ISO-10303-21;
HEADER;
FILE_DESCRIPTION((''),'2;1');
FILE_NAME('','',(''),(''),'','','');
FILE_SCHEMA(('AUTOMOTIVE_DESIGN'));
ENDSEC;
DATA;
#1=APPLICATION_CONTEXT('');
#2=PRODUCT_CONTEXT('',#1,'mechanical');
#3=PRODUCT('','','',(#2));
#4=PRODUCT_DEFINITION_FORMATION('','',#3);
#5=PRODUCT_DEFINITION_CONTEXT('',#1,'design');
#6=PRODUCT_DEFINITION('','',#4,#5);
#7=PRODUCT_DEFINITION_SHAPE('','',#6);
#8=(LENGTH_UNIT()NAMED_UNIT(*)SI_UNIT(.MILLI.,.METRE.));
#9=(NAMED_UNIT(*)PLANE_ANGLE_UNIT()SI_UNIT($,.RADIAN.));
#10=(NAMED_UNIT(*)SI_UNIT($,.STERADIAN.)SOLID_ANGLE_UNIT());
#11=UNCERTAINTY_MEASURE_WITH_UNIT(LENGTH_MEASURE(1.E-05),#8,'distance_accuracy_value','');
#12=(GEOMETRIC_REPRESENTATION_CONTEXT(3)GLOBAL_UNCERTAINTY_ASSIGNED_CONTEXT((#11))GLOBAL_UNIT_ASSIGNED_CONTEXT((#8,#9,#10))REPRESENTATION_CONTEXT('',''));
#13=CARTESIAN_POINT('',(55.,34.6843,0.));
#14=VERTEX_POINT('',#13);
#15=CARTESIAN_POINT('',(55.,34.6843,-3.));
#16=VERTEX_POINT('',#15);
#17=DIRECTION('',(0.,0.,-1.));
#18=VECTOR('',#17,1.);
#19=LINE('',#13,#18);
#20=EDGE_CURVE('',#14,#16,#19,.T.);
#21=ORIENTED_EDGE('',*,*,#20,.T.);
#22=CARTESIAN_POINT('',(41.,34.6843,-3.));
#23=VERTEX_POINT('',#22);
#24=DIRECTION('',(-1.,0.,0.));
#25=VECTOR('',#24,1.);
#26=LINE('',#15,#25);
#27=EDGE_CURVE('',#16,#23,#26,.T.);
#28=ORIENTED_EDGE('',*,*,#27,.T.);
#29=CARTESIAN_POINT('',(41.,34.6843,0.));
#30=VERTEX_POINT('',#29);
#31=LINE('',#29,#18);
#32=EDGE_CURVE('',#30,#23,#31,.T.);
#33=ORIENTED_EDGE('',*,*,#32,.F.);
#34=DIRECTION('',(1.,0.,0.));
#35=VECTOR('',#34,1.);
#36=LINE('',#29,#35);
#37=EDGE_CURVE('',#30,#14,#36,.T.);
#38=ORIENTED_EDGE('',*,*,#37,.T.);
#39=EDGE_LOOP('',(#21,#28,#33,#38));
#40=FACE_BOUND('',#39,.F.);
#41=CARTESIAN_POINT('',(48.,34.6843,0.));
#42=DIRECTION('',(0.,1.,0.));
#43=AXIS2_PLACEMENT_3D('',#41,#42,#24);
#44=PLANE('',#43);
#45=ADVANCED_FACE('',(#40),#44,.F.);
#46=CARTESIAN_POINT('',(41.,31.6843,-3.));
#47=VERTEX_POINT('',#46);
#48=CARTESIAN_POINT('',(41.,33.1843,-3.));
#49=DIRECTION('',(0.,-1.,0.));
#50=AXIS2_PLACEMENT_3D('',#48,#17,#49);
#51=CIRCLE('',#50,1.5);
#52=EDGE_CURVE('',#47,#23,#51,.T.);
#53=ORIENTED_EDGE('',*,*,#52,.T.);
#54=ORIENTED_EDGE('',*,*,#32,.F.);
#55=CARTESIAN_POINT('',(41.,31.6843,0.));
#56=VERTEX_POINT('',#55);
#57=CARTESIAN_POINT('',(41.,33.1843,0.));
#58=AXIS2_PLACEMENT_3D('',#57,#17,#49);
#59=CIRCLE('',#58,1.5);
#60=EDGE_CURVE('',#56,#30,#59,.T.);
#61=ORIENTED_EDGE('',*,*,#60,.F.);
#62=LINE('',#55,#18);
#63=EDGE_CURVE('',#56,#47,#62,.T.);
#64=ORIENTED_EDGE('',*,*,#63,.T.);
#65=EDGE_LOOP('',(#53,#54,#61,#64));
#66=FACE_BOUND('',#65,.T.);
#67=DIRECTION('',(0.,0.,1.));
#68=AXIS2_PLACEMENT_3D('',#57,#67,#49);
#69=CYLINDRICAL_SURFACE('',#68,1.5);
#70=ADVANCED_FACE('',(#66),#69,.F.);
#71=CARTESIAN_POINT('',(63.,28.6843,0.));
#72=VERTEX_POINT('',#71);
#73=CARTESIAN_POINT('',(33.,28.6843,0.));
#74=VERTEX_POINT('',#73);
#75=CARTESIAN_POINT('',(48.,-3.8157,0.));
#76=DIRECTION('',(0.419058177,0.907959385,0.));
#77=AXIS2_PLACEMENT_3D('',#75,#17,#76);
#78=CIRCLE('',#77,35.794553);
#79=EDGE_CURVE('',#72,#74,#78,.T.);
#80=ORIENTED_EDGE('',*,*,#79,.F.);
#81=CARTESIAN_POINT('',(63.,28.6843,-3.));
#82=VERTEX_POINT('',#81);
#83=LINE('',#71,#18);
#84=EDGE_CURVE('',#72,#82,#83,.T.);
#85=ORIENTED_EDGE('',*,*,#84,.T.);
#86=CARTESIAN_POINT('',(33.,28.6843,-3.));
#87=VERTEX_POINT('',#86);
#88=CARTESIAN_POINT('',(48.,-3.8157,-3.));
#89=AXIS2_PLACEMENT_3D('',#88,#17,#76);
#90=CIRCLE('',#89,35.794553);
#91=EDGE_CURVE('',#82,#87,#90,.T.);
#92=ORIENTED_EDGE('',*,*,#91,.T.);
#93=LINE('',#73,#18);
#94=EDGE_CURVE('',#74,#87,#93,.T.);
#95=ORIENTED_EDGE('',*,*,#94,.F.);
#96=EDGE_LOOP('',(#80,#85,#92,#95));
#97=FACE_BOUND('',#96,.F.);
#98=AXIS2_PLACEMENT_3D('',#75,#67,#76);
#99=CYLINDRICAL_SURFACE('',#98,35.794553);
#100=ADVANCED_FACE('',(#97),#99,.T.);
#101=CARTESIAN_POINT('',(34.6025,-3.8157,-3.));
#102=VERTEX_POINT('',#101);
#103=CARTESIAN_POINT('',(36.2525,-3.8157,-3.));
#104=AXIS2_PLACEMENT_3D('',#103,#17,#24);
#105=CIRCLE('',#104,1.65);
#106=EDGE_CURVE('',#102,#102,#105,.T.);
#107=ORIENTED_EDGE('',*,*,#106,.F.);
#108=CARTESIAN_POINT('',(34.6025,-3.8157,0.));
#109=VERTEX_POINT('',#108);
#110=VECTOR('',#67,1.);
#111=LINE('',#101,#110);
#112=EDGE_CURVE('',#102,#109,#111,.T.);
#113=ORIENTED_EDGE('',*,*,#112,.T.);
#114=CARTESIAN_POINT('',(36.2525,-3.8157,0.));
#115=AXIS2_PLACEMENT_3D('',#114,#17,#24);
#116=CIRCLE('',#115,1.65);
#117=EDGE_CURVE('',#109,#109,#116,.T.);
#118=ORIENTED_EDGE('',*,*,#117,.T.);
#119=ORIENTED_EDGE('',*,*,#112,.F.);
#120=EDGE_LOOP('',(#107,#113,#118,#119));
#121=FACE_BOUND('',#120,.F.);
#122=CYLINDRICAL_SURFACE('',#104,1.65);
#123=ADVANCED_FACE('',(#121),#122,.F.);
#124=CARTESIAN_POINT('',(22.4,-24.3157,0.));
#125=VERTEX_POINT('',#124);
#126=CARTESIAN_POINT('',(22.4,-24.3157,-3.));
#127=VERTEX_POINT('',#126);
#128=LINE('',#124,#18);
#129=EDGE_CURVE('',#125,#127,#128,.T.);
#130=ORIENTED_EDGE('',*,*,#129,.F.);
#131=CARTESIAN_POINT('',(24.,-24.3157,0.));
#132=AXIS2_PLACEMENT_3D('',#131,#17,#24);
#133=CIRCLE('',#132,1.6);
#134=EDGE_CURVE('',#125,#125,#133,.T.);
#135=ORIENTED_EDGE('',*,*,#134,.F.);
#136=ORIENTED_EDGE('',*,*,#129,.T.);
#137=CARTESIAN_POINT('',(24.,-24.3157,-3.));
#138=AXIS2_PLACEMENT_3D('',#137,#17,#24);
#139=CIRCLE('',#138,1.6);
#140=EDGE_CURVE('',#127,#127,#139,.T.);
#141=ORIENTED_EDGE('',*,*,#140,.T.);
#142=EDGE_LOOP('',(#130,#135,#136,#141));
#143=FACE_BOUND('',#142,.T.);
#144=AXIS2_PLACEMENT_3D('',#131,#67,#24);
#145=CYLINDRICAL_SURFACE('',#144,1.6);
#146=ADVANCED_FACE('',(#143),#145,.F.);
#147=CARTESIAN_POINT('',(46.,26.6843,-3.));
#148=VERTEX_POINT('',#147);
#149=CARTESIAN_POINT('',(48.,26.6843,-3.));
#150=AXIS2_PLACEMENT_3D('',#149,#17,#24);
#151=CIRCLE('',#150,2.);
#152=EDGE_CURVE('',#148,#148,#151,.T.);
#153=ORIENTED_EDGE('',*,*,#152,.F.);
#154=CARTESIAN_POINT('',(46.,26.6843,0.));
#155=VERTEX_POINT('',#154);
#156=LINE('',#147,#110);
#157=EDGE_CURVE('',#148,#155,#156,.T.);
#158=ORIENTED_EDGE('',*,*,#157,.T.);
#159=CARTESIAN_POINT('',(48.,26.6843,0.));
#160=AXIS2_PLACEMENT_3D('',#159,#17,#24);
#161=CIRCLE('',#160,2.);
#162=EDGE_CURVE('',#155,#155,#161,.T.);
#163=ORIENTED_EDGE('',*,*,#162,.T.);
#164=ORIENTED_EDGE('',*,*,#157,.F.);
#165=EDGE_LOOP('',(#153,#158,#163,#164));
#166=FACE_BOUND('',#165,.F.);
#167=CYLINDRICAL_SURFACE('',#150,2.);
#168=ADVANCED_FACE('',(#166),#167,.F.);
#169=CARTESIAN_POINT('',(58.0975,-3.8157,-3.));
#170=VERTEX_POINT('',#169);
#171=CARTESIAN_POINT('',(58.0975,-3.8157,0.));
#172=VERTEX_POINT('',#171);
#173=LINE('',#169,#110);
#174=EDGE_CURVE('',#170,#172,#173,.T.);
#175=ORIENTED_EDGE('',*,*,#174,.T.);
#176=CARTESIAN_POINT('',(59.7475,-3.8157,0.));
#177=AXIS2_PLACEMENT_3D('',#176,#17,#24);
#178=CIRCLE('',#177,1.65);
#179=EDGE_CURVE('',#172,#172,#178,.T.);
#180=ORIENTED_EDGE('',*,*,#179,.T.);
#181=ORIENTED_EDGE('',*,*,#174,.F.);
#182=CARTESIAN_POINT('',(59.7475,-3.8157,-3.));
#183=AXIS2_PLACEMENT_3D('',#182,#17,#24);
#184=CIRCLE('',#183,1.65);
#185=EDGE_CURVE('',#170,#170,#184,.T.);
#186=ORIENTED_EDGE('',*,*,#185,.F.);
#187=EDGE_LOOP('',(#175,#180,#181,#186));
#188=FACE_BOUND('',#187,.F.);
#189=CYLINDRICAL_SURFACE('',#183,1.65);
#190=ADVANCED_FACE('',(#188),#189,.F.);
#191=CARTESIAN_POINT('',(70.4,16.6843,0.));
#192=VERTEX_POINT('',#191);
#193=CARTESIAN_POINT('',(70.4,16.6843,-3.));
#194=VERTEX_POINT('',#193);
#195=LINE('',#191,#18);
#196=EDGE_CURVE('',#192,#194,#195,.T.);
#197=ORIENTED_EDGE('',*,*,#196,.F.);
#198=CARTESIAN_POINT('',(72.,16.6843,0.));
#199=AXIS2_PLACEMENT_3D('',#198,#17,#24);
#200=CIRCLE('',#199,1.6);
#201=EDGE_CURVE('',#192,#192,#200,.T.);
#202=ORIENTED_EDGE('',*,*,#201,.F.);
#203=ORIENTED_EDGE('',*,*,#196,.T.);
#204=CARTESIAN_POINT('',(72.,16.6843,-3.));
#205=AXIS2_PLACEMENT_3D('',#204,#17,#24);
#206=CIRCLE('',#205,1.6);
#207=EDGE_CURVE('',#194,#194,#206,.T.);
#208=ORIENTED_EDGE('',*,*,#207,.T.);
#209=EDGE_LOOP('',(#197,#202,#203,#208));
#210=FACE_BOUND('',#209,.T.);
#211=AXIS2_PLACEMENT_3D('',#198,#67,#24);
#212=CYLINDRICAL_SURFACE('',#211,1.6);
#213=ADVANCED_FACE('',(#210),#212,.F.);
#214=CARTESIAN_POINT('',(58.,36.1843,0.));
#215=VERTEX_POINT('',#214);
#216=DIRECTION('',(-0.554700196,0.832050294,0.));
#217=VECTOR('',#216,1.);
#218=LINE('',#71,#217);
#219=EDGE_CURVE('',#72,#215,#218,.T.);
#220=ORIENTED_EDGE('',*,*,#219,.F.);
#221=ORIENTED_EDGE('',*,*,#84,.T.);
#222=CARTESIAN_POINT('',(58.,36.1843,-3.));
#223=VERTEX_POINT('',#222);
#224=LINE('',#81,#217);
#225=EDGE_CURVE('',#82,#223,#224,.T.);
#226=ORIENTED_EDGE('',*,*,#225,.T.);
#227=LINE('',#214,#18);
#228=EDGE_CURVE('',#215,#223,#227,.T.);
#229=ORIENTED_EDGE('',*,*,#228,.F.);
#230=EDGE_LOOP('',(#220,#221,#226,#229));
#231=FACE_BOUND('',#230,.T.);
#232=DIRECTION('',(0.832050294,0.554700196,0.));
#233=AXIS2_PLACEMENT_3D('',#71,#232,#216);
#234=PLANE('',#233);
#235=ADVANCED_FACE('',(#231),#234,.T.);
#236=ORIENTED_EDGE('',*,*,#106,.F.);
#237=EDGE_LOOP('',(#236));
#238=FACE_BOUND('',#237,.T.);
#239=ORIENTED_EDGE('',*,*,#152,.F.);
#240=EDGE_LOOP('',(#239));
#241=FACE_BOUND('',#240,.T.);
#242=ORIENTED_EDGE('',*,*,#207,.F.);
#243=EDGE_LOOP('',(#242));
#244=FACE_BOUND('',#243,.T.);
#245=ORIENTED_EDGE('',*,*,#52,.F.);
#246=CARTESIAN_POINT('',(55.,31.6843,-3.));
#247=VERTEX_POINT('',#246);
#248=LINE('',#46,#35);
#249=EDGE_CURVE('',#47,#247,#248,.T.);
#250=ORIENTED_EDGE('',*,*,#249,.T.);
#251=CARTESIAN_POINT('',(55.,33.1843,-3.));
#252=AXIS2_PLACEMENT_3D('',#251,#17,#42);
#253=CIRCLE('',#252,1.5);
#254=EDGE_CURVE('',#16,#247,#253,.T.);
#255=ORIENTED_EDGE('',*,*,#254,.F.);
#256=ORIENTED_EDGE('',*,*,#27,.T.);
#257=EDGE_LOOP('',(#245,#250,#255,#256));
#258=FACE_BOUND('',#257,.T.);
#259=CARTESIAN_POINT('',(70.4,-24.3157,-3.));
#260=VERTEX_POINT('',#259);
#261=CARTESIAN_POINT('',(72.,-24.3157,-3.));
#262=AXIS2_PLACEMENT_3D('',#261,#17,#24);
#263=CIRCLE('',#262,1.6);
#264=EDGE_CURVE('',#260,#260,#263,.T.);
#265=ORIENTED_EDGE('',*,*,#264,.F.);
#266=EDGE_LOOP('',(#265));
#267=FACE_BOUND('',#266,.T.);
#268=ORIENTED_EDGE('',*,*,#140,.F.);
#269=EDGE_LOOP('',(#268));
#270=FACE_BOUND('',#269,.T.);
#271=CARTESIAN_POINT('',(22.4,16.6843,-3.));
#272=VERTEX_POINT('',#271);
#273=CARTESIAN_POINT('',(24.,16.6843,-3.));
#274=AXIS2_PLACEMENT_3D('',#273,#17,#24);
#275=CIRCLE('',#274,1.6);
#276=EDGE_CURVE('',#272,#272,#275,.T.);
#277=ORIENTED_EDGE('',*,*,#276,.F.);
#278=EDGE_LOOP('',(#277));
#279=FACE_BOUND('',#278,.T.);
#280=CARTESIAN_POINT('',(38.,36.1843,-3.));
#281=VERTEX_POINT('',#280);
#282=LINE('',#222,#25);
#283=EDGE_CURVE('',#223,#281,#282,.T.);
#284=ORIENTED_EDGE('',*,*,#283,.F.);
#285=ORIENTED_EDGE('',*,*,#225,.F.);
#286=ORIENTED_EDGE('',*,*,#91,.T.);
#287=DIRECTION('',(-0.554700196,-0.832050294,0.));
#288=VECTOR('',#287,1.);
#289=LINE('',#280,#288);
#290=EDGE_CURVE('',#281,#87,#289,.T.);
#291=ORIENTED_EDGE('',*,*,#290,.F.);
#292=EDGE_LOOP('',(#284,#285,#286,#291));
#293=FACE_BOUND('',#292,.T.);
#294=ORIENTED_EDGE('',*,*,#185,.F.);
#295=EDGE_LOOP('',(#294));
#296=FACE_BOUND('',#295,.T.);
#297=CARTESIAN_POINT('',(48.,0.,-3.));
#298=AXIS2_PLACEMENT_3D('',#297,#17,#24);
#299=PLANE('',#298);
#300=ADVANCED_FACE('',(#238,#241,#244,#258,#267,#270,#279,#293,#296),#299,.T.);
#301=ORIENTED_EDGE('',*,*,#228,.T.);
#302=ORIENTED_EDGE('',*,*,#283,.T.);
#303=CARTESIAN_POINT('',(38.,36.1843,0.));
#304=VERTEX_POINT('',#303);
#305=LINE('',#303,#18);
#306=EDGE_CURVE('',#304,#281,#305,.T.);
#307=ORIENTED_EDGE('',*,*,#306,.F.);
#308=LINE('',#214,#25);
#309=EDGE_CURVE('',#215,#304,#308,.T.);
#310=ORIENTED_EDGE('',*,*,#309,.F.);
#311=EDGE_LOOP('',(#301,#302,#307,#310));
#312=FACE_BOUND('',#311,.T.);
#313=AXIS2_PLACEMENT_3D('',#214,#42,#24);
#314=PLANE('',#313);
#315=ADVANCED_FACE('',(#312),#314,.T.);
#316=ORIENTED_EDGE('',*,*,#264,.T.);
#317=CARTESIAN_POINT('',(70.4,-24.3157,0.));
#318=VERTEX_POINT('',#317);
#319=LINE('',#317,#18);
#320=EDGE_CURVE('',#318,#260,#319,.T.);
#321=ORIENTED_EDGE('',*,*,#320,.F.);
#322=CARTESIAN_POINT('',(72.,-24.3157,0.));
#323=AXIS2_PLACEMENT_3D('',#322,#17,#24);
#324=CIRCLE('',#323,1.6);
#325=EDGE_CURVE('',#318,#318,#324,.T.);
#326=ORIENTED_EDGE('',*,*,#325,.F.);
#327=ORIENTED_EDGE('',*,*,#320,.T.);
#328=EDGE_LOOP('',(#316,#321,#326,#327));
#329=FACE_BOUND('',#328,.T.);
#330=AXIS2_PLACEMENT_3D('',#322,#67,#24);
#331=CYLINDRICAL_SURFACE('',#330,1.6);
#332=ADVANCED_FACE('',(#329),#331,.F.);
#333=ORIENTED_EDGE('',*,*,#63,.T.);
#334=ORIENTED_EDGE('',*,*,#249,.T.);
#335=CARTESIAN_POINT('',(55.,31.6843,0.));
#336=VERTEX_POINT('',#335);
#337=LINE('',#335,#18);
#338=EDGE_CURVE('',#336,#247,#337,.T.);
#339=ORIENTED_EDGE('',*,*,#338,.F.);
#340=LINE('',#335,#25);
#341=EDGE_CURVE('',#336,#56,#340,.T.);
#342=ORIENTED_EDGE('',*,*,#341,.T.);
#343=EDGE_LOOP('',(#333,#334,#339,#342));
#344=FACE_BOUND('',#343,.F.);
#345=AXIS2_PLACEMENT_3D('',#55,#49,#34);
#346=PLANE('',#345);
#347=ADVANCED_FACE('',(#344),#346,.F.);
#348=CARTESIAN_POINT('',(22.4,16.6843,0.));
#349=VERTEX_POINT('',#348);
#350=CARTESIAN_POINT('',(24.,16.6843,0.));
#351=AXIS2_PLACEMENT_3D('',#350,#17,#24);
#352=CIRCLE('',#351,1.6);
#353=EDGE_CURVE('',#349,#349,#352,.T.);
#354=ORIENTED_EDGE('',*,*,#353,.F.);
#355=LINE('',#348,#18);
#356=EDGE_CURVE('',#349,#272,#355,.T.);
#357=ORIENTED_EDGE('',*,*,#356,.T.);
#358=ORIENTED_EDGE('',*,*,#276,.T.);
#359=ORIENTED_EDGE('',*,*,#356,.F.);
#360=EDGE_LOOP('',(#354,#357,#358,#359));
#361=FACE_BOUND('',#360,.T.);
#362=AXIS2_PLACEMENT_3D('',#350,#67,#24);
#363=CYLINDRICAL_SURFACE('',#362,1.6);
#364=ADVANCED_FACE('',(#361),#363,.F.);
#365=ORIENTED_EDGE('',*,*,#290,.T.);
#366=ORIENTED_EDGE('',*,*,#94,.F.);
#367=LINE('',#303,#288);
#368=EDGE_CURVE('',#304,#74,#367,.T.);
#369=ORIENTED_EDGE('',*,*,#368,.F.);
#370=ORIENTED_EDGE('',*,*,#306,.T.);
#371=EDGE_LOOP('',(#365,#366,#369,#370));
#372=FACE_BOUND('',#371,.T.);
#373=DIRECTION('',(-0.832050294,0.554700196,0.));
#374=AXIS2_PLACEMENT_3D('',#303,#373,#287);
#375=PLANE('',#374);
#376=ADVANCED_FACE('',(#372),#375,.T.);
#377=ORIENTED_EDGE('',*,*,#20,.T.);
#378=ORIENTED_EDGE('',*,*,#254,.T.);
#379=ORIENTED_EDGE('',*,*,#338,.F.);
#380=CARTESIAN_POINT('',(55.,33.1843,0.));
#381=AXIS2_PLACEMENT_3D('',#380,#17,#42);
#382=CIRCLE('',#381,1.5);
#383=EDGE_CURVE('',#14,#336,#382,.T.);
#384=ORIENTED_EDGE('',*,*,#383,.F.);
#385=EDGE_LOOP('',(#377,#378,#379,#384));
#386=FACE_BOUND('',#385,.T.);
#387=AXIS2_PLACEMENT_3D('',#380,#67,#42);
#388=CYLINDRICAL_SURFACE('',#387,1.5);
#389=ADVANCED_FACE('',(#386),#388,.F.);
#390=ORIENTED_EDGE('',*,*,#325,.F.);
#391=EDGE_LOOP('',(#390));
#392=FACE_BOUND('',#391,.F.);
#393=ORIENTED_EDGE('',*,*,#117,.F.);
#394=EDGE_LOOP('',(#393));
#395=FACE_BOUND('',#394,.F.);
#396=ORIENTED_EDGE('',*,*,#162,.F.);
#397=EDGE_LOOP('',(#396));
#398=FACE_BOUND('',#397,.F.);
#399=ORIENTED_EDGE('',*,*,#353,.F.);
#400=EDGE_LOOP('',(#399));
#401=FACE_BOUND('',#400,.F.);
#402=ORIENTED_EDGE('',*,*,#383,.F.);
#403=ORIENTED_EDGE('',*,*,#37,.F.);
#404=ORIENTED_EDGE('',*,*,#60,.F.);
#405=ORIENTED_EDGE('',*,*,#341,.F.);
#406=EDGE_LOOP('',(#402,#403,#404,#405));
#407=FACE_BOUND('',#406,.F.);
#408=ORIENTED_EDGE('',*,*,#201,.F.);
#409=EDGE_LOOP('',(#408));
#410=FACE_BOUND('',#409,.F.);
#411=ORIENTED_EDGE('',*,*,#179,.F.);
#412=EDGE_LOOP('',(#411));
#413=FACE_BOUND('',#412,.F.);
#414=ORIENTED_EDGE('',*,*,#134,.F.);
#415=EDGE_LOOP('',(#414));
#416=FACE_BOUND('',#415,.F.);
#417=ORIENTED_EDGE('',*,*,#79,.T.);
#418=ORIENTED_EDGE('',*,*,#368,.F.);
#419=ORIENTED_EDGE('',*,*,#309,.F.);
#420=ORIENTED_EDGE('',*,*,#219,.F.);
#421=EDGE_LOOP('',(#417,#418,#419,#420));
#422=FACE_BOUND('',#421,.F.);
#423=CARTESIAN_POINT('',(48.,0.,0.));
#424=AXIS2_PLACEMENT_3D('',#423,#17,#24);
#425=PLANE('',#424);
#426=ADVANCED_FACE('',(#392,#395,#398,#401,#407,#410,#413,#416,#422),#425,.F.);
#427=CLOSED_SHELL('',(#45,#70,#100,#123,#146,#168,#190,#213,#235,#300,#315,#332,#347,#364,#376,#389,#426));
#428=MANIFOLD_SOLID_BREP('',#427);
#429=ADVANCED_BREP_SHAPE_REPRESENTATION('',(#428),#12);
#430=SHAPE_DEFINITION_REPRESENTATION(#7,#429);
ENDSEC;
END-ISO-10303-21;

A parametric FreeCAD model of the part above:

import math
import FreeCAD as App
import Part
import Sketcher
from FreeCAD import Vector
Q = App.Units.Quantity

doc = App.newDocument("Part")
body = doc.addObject("PartDesign::Body", "Body")

sketch1 = body.newObject("Sketcher::SketchObject", "Sketch")
sketch1.AttachmentSupport = (doc.getObject("XY_Plane"), [""])
sketch1.MapMode = "FlatFace"
sketch1.addGeometry(Part.LineSegment(Vector(58, 36.2, 0), Vector(63, 28.7, 0)), False)
sketch1.addGeometry(Part.ArcOfCircle(Part.Circle(Vector(48, -3.8, 0), Vector(0, 0, 1), 35.8), math.radians(115), math.radians(425)), False)
sketch1.addGeometry(Part.LineSegment(Vector(33, 28.7, 0), Vector(38, 36.2, 0)), False)
sketch1.addGeometry(Part.LineSegment(Vector(38, 36.2, 0), Vector(58, 36.2, 0)), False)
sketch1.addGeometry(Part.Circle(Vector(72, -24.3, 0), Vector(0, 0, 1), 1.6), False)
sketch1.addGeometry(Part.Circle(Vector(24, -24.3, 0), Vector(0, 0, 1), 1.6), False)
sketch1.addGeometry(Part.Circle(Vector(72, 16.7, 0), Vector(0, 0, 1), 1.6), False)
sketch1.addGeometry(Part.Circle(Vector(24, 16.7, 0), Vector(0, 0, 1), 1.6), False)
sketch1.addGeometry(Part.LineSegment(Vector(41, 31.7, 0), Vector(55, 31.7, 0)), False)
sketch1.addGeometry(Part.ArcOfCircle(Part.Circle(Vector(55, 33.2, 0), Vector(0, 0, 1), 1.5), math.radians(-90), math.radians(90)), False)
sketch1.addGeometry(Part.LineSegment(Vector(55, 34.7, 0), Vector(41, 34.7, 0)), False)
sketch1.addGeometry(Part.ArcOfCircle(Part.Circle(Vector(41, 33.2, 0), Vector(0, 0, 1), 1.5), math.radians(90), math.radians(270)), False)
sketch1.addConstraint(Sketcher.Constraint("Coincident", 0, 2, 1, 2))
sketch1.addConstraint(Sketcher.Constraint("Coincident", 1, 1, 2, 1))
sketch1.addConstraint(Sketcher.Constraint("Coincident", 2, 2, 3, 1))
sketch1.addConstraint(Sketcher.Constraint("Coincident", 3, 2, 0, 1))
sketch1.addConstraint(Sketcher.Constraint("Tangent", 8, 2, 9, 1))
sketch1.addConstraint(Sketcher.Constraint("Tangent", 9, 2, 10, 1))
sketch1.addConstraint(Sketcher.Constraint("Tangent", 10, 2, 11, 1))
sketch1.addConstraint(Sketcher.Constraint("Tangent", 11, 2, 8, 1))
sketch1.addConstraint(Sketcher.Constraint("Horizontal", 3))
sketch1.addConstraint(Sketcher.Constraint("Horizontal", 8))
sketch1.addConstraint(Sketcher.Constraint("Horizontal", 10))
sketch1.addConstraint(Sketcher.Constraint("Equal", 4, 5))
sketch1.addConstraint(Sketcher.Constraint("Equal", 5, 6))
sketch1.addConstraint(Sketcher.Constraint("Equal", 6, 7))
sketch1.addConstraint(Sketcher.Constraint("Horizontal", 4, 3, 5, 3))
sketch1.addConstraint(Sketcher.Constraint("Horizontal", 6, 3, 7, 3))
sketch1.addConstraint(Sketcher.Constraint("Horizontal", 0, 2, 1, 1))
sketch1.addConstraint(Sketcher.Constraint("Vertical", 4, 3, 6, 3))
sketch1.addConstraint(Sketcher.Constraint("Vertical", 5, 3, 7, 3))
sketch1.addConstraint(Sketcher.Constraint("Equal", 0, 2))
sketch1.addConstraint(Sketcher.Constraint("Diameter", 4, Q("3.2 mm")))
sketch1.addConstraint(Sketcher.Constraint("Radius", 9, Q("1.5 mm")))
sketch1.addConstraint(Sketcher.Constraint("DistanceX", 3, 1, 3, 2, Q("20 mm")))
sketch1.addConstraint(Sketcher.Constraint("DistanceX", 8, 1, 8, 2, Q("14 mm")))
sketch1.addConstraint(Sketcher.Constraint("DistanceX", -1, 1, 1, 3, Q("48 mm")))
sketch1.addConstraint(Sketcher.Constraint("DistanceX", -1, 1, 4, 3, Q("72 mm")))
sketch1.addConstraint(Sketcher.Constraint("DistanceX", -1, 1, 5, 3, Q("24 mm")))
sketch1.addConstraint(Sketcher.Constraint("DistanceX", -1, 1, 9, 3, Q("55 mm")))
sketch1.addConstraint(Sketcher.Constraint("DistanceX", -1, 1, 0, 2, Q("63 mm")))
sketch1.addConstraint(Sketcher.Constraint("DistanceY", 4, 3, 6, 3, Q("41 mm")))
sketch1.addConstraint(Sketcher.Constraint("DistanceY", 1, 3, 9, 3, Q("37 mm")))
sketch1.addConstraint(Sketcher.Constraint("DistanceY", 6, 3, 0, 2, Q("12 mm")))
sketch1.addConstraint(Sketcher.Constraint("DistanceY", 11, 3, 2, 2, Q("3 mm")))
sketch1.addConstraint(Sketcher.Constraint("DistanceY", 0, 2, 8, 2, Q("3 mm")))
sketch1.addConstraint(Sketcher.Constraint("DistanceY", 1, 3, -1, 1, Q("3.8157 mm")))
pad1 = body.newObject("PartDesign::Pad", "Pad")
pad1.Profile = sketch1
pad1.Length = 3
pad1.Reversed = True

sketch2 = body.newObject("Sketcher::SketchObject", "Sketch001")
sketch2.AttachmentSupport = (doc.getObject("XY_Plane"), [""])
sketch2.MapMode = "FlatFace"
sketch2.AttachmentOffset = App.Placement(Vector(0, 0, -3), App.Rotation())
sketch2.addGeometry(Part.Circle(Vector(36.3, -3.8, 0), Vector(0, 0, 1), 1.6), False)
sketch2.addGeometry(Part.Circle(Vector(59.7, -3.8, 0), Vector(0, 0, 1), 1.6), False)
sketch2.addGeometry(Part.Circle(Vector(48, 26.7, 0), Vector(0, 0, 1), 2), False)
sketch2.addConstraint(Sketcher.Constraint("Equal", 0, 1))
sketch2.addConstraint(Sketcher.Constraint("Horizontal", 0, 3, 1, 3))
sketch2.addConstraint(Sketcher.Constraint("Diameter", 2, Q("4 mm")))
sketch2.addConstraint(Sketcher.Constraint("Diameter", 0, Q("3.3 mm")))
sketch2.addConstraint(Sketcher.Constraint("DistanceX", -1, 1, 2, 3, Q("48 mm")))
sketch2.addConstraint(Sketcher.Constraint("DistanceX", 0, 3, 1, 3, Q("23.495 mm")))
sketch2.addConstraint(Sketcher.Constraint("DistanceY", 0, 3, 2, 3, Q("30.5 mm")))
sketch2.addConstraint(Sketcher.Constraint("DistanceX", -1, 1, 0, 3, Q("36.2525 mm")))
sketch2.addConstraint(Sketcher.Constraint("DistanceY", 0, 3, -1, 1, Q("3.8157 mm")))
pocket1 = body.newObject("PartDesign::Pocket", "Pocket")
pocket1.Profile = sketch2
pocket1.Type = "ThroughAll"
pocket1.Reversed = True

doc.recompute()
